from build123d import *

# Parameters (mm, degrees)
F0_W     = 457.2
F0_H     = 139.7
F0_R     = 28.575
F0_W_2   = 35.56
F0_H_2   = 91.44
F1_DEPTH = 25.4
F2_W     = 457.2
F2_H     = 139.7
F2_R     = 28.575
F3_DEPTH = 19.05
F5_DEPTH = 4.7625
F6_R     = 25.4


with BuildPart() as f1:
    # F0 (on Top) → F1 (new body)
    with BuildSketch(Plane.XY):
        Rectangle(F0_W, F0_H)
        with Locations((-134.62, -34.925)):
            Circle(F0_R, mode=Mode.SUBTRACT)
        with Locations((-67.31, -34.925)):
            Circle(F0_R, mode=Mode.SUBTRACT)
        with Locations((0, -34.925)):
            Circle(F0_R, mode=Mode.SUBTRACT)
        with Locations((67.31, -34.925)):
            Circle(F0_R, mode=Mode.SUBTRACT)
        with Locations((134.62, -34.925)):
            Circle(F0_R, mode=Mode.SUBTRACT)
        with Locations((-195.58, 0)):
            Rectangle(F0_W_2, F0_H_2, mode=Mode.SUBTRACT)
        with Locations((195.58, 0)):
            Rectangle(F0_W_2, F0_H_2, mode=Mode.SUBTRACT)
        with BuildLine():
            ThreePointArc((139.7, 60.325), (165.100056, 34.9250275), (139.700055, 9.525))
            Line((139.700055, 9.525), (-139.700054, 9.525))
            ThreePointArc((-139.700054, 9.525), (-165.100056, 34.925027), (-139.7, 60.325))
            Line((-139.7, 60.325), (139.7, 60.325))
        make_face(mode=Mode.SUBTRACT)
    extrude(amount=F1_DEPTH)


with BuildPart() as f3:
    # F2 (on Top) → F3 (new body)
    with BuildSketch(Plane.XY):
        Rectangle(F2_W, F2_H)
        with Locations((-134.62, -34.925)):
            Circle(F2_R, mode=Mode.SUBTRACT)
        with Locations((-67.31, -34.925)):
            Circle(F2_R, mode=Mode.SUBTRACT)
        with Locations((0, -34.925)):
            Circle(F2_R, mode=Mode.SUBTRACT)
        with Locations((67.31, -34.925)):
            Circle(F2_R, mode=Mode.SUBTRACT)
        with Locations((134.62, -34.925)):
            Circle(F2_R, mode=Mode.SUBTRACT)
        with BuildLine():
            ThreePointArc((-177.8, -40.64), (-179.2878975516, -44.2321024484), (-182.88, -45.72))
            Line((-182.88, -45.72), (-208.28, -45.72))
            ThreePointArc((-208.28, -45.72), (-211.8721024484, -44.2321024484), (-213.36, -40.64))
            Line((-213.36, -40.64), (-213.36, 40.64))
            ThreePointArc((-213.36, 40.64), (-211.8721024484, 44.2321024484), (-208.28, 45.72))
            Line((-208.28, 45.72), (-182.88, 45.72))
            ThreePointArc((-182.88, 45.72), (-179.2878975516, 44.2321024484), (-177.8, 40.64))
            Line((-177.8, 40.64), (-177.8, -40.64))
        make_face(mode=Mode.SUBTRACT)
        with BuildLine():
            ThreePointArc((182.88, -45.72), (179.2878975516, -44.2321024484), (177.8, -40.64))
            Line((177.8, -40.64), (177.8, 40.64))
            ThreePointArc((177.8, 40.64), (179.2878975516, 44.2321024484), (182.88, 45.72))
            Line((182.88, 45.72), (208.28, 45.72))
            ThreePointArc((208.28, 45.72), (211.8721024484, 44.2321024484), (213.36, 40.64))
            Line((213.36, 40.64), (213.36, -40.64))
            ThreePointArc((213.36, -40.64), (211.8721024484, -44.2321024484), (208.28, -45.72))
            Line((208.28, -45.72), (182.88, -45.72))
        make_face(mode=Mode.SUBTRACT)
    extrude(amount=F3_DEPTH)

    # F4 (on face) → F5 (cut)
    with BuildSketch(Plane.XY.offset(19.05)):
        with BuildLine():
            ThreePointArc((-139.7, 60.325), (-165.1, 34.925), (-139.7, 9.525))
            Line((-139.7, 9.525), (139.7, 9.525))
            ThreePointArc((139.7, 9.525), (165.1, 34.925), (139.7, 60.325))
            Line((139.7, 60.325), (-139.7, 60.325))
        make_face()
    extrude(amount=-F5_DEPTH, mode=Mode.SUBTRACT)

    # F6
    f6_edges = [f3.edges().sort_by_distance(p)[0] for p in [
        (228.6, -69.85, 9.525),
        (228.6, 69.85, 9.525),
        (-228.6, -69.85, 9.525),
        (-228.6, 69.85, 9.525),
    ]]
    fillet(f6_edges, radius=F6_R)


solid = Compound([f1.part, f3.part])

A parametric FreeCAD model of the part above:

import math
import FreeCAD as App
import Part
import Sketcher
Q = App.Units.Quantity


def edges_at(feature, points):
    """Names of the edges that pass closest to the given points."""
    edges = feature.Shape.Edges
    near = lambda p: min(range(len(edges)), key=lambda i: edges[i].distToShape(Part.Vertex(*p))[0])
    return sorted({f"Edge{near(p) + 1}" for p in points})

doc = App.newDocument("Part")
params = doc.addObject("Spreadsheet::Sheet", "Params")
for row, (alias, value) in enumerate([
    ("sketch1_radius", "1 in"),
    ("sketch1_diameter", "2.25 in"),
    ("sketch1_width", "18 in"),
    ("sketch1_width2", "11 in"),
    ("sketch1_width3", "1.4 in"),
    ("pad1_length", "1 in"),
    ("sketch2_radius", "0.2 in"),
    ("sketch2_diameter", "2.25 in"),
    ("sketch2_width", "18 in"),
    ("sketch2_width2", "1 in"),
    ("sketch2_height", "5.5 in"),
    ("pad2_length", "0.75 in"),
    ("sketch3_radius", "1 in"),
    ("sketch3_width", "11 in"),
    ("pocket1_length", "0.1875 in"),
    ("fillet_radius", "1 in"),
], start=1):
    params.set(f"A{row}", alias)
    params.set(f"B{row}", "=" + value)
    params.setAlias(f"B{row}", alias)

body = doc.addObject("PartDesign::Body", "Body")

sketch1 = body.newObject("Sketcher::SketchObject", "Sketch")
sketch1.AttachmentSupport = (doc.getObject("XY_Plane"), [""])
sketch1.MapMode = "FlatFace"
sketch1.addGeometry([
    Part.LineSegment(App.Vector(-229, 70, 0), App.Vector(-229, -70, 0)),
    Part.LineSegment(App.Vector(-229, -70, 0), App.Vector(229, -70, 0)),
    Part.LineSegment(App.Vector(229, -70, 0), App.Vector(229, 70, 0)),
    Part.LineSegment(App.Vector(229, 70, 0), App.Vector(-229, 70, 0)),
    Part.Circle(App.Vector(-135, -35, 0), App.Vector(0, 0, 1), 29),
    Part.Circle(App.Vector(-67, -35, 0), App.Vector(0, 0, 1), 29),
    Part.Circle(App.Vector(0, -35, 0), App.Vector(0, 0, 1), 29),
    Part.Circle(App.Vector(67, -35, 0), App.Vector(0, 0, 1), 29),
    Part.Circle(App.Vector(135, -35, 0), App.Vector(0, 0, 1), 29),
    Part.LineSegment(App.Vector(-178, -46, 0), App.Vector(-213, -46, 0)),
    Part.LineSegment(App.Vector(-213, -46, 0), App.Vector(-213, 46, 0)),
    Part.LineSegment(App.Vector(-213, 46, 0), App.Vector(-178, 46, 0)),
    Part.LineSegment(App.Vector(-178, 46, 0), App.Vector(-178, -46, 0)),
    Part.LineSegment(App.Vector(213, -46, 0), App.Vector(178, -46, 0)),
    Part.LineSegment(App.Vector(178, -46, 0), App.Vector(178, 46, 0)),
    Part.LineSegment(App.Vector(178, 46, 0), App.Vector(213, 46, 0)),
    Part.LineSegment(App.Vector(213, 46, 0), App.Vector(213, -46, 0)),
    Part.LineSegment(App.Vector(-140, 60, 0), App.Vector(140, 60, 0)),
    Part.ArcOfCircle(Part.Circle(App.Vector(140, 35, 0), App.Vector(0, 0, 1), 25), math.radians(-90), math.radians(90)),
    Part.LineSegment(App.Vector(140, 10, 0), App.Vector(-140, 10, 0)),
    Part.ArcOfCircle(Part.Circle(App.Vector(-140, 35, 0), App.Vector(0, 0, 1), 25), math.radians(90), math.radians(270)),
], False)
sketch1.addConstraint([
    Sketcher.Constraint("Coincident", 0, 2, 1, 1),
    Sketcher.Constraint("Coincident", 1, 2, 2, 1),
    Sketcher.Constraint("Coincident", 2, 2, 3, 1),
    Sketcher.Constraint("Coincident", 3, 2, 0, 1),
    Sketcher.Constraint("Coincident", 9, 2, 10, 1),
    Sketcher.Constraint("Coincident", 10, 2, 11, 1),
    Sketcher.Constraint("Coincident", 11, 2, 12, 1),
    Sketcher.Constraint("Coincident", 12, 2, 9, 1),
    Sketcher.Constraint("Coincident", 13, 2, 14, 1),
    Sketcher.Constraint("Coincident", 14, 2, 15, 1),
    Sketcher.Constraint("Coincident", 15, 2, 16, 1),
    Sketcher.Constraint("Coincident", 16, 2, 13, 1),
    Sketcher.Constraint("Coincident", 17, 2, 18, 2),
    Sketcher.Constraint("Tangent", 18, 1, 19, 1),
    Sketcher.Constraint("Tangent", 19, 2, 20, 2),
    Sketcher.Constraint("Coincident", 20, 1, 17, 1),
    Sketcher.Constraint("Vertical", 0),
    Sketcher.Constraint("Horizontal", 1),
    Sketcher.Constraint("Vertical", 2),
    Sketcher.Constraint("Horizontal", 3),
    Sketcher.Constraint("Horizontal", 9),
    Sketcher.Constraint("Vertical", 10),
    Sketcher.Constraint("Horizontal", 11),
    Sketcher.Constraint("Vertical", 12),
    Sketcher.Constraint("Horizontal", 13),
    Sketcher.Constraint("Vertical", 14),
    Sketcher.Constraint("Horizontal", 15),
    Sketcher.Constraint("Vertical", 16),
    Sketcher.Constraint("Horizontal", 17),
    Sketcher.Constraint("Horizontal", 19),
    Sketcher.Constraint("Equal", 4, 5),
    Sketcher.Constraint("Equal", 5, 6),
    Sketcher.Constraint("Equal", 6, 7),
    Sketcher.Constraint("Equal", 7, 8),
    Sketcher.Constraint("Symmetric", 0, 2, 2, 2, -1, 1),
    Sketcher.Constraint("Symmetric", 11, 2, 13, 2, -1, 1),
    Sketcher.Constraint("Symmetric", 9, 2, 15, 2, -1, 1),
    Sketcher.Constraint("Symmetric", 5, 3, 7, 3, -2),
    Sketcher.Constraint("Symmetric", 4, 3, 8, 3, -2),
    Sketcher.Constraint("PointOnObject", 6, 3, -2),
    Sketcher.Constraint("Horizontal", 4, 3, 5, 3),
    Sketcher.Constraint("Horizontal", 5, 3, 6, 3),
    Sketcher.Constraint("Horizontal", 12, 2, 13, 2),
    Sketcher.Constraint("Radius", 18, Q("1 in")),
    Sketcher.Constraint("Diameter", 4, Q("2.25 in")),
    Sketcher.Constraint("DistanceX", 1, 1, 1, 2, Q("18 in")),
    Sketcher.Constraint("DistanceX", 17, 1, 17, 2, Q("11 in")),
    Sketcher.Constraint("DistanceX", 9, 2, 9, 1, Q("1.4 in")),
    Sketcher.Constraint("DistanceY", 0, 2, 0, 1, Q("5.5 in")),
    Sketcher.Constraint("DistanceY", 10, 1, 10, 2, Q("3.6 in")),
    Sketcher.Constraint("DistanceX", 11, 2, -1, 1, Q("7 in")),
    Sketcher.Constraint("DistanceX", 4, 3, -1, 1, Q("5.3 in")),
    Sketcher.Constraint("DistanceX", -1, 1, 17, 2, Q("5.5 in")),
    Sketcher.Constraint("DistanceX", 5, 3, 7, 3, Q("5.3 in")),
    Sketcher.Constraint("DistanceY", 8, 3, 18, 3, Q("2.75 in")),
    Sketcher.Constraint("DistanceY", 4, 3, -1, 1, Q("1.375 in")),
    Sketcher.Constraint("DistanceX", 19, 2, 19, 1, 279.400109),
    Sketcher.Constraint("DistanceX", -1, 1, 18, 3, 139.700056),
])
sketch1.setExpression("Constraints[43]", "Params.sketch1_radius")
sketch1.setExpression("Constraints[44]", "Params.sketch1_diameter")
sketch1.setExpression("Constraints[45]", "Params.sketch1_width")
sketch1.setExpression("Constraints[46]", "Params.sketch1_width2")
sketch1.setExpression("Constraints[47]", "Params.sketch1_width3")
pad1 = body.newObject("PartDesign::Pad", "Pad")
pad1.Profile = sketch1
pad1.setExpression("Length", "Params.pad1_length")
body2 = doc.addObject("PartDesign::Body", "Body001")

sketch2 = body2.newObject("Sketcher::SketchObject", "Sketch001")
sketch2.AttachmentSupport = (doc.getObject("XY_Plane001"), [""])
sketch2.MapMode = "FlatFace"
sketch2.addGeometry([
    Part.LineSegment(App.Vector(-229, 70, 0), App.Vector(-229, -70, 0)),
    Part.LineSegment(App.Vector(-229, -70, 0), App.Vector(229, -70, 0)),
    Part.LineSegment(App.Vector(229, -70, 0), App.Vector(229, 70, 0)),
    Part.LineSegment(App.Vector(229, 70, 0), App.Vector(-229, 70, 0)),
    Part.Circle(App.Vector(-135, -35, 0), App.Vector(0, 0, 1), 29),
    Part.Circle(App.Vector(-67, -35, 0), App.Vector(0, 0, 1), 29),
    Part.Circle(App.Vector(0, -35, 0), App.Vector(0, 0, 1), 29),
    Part.Circle(App.Vector(67, -35, 0), App.Vector(0, 0, 1), 29),
    Part.Circle(App.Vector(135, -35, 0), App.Vector(0, 0, 1), 29),
    Part.LineSegment(App.Vector(-178, 41, 0), App.Vector(-178, -41, 0)),
    Part.ArcOfCircle(Part.Circle(App.Vector(-183, -41, 0), App.Vector(0, 0, 1), 5), math.radians(-90), math.radians(0)),
    Part.LineSegment(App.Vector(-183, -46, 0), App.Vector(-208, -46, 0)),
    Part.ArcOfCircle(Part.Circle(App.Vector(-208, -41, 0), App.Vector(0, 0, 1), 5), math.radians(180), math.radians(270)),
    Part.LineSegment(App.Vector(-213, -41, 0), App.Vector(-213, 41, 0)),
    Part.ArcOfCircle(Part.Circle(App.Vector(-208, 41, 0), App.Vector(0, 0, 1), 5), math.radians(90), math.radians(180)),
    Part.LineSegment(App.Vector(-208, 46, 0), App.Vector(-183, 46, 0)),
    Part.ArcOfCircle(Part.Circle(App.Vector(-183, 41, 0), App.Vector(0, 0, 1), 5), math.radians(0), math.radians(90)),
    Part.LineSegment(App.Vector(208, -46, 0), App.Vector(183, -46, 0)),
    Part.ArcOfCircle(Part.Circle(App.Vector(183, -41, 0), App.Vector(0, 0, 1), 5), math.radians(180), math.radians(270)),
    Part.LineSegment(App.Vector(178, -41, 0), App.Vector(178, 41, 0)),
    Part.ArcOfCircle(Part.Circle(App.Vector(183, 41, 0), App.Vector(0, 0, 1), 5), math.radians(90), math.radians(180)),
    Part.LineSegment(App.Vector(183, 46, 0), App.Vector(208, 46, 0)),
    Part.ArcOfCircle(Part.Circle(App.Vector(208, 41, 0), App.Vector(0, 0, 1), 5), math.radians(0), math.radians(90)),
    Part.LineSegment(App.Vector(213, 41, 0), App.Vector(213, -41, 0)),
    Part.ArcOfCircle(Part.Circle(App.Vector(208, -41, 0), App.Vector(0, 0, 1), 5), math.radians(-90), math.radians(0)),
], False)
sketch2.addConstraint([
    Sketcher.Constraint("Coincident", 0, 2, 1, 1),
    Sketcher.Constraint("Coincident", 1, 2, 2, 1),
    Sketcher.Constraint("Coincident", 2, 2, 3, 1),
    Sketcher.Constraint("Coincident", 3, 2, 0, 1),
    Sketcher.Constraint("Tangent", 9, 2, 10, 2),
    Sketcher.Constraint("Tangent", 10, 1, 11, 1),
    Sketcher.Constraint("Tangent", 11, 2, 12, 2),
    Sketcher.Constraint("Tangent", 12, 1, 13, 1),
    Sketcher.Constraint("Tangent", 13, 2, 14, 2),
    Sketcher.Constraint("Tangent", 14, 1, 15, 1),
    Sketcher.Constraint("Tangent", 15, 2, 16, 2),
    Sketcher.Constraint("Tangent", 16, 1, 9, 1),
    Sketcher.Constraint("Tangent", 17, 2, 18, 2),
    Sketcher.Constraint("Tangent", 18, 1, 19, 1),
    Sketcher.Constraint("Tangent", 19, 2, 20, 2),
    Sketcher.Constraint("Tangent", 20, 1, 21, 1),
    Sketcher.Constraint("Tangent", 21, 2, 22, 2),
    Sketcher.Constraint("Tangent", 22, 1, 23, 1),
    Sketcher.Constraint("Tangent", 23, 2, 24, 2),
    Sketcher.Constraint("Tangent", 24, 1, 17, 1),
    Sketcher.Constraint("Vertical", 0),
    Sketcher.Constraint("Horizontal", 1),
    Sketcher.Constraint("Vertical", 2),
    Sketcher.Constraint("Horizontal", 3),
    Sketcher.Constraint("Vertical", 9),
    Sketcher.Constraint("Horizontal", 11),
    Sketcher.Constraint("Vertical", 13),
    Sketcher.Constraint("Horizontal", 15),
    Sketcher.Constraint("Horizontal", 17),
    Sketcher.Constraint("Vertical", 19),
    Sketcher.Constraint("Horizontal", 21),
    Sketcher.Constraint("Vertical", 23),
    Sketcher.Constraint("Equal", 4, 5),
    Sketcher.Constraint("Equal", 5, 6),
    Sketcher.Constraint("Equal", 6, 7),
    Sketcher.Constraint("Equal", 7, 8),
    Sketcher.Constraint("Equal", 10, 12),
    Sketcher.Constraint("Equal", 12, 14),
    Sketcher.Constraint("Equal", 14, 16),
    Sketcher.Constraint("Equal", 16, 18),
    Sketcher.Constraint("Equal", 18, 20),
    Sketcher.Constraint("Equal", 20, 22),
    Sketcher.Constraint("Equal", 22, 24),
    Sketcher.Constraint("Symmetric", 16, 3, 18, 3, -1, 1),
    Sketcher.Constraint("Symmetric", 12, 3, 22, 3, -1, 1),
    Sketcher.Constraint("Symmetric", 0, 2, 2, 2, -1, 1),
    Sketcher.Constraint("Symmetric", 5, 3, 7, 3, -2),
    Sketcher.Constraint("Symmetric", 4, 3, 8, 3, -2),
    Sketcher.Constraint("PointOnObject", 6, 3, -2),
    Sketcher.Constraint("Horizontal", 4, 3, 5, 3),
    Sketcher.Constraint("Horizontal", 5, 3, 6, 3),
    Sketcher.Constraint("Horizontal", 12, 3, 18, 3),
    Sketcher.Constraint("Radius", 10, Q("0.2 in")),
    Sketcher.Constraint("Diameter", 4, Q("2.25 in")),
    Sketcher.Constraint("DistanceX", 1, 1, 1, 2, Q("18 in")),
    Sketcher.Constraint("DistanceX", 11, 2, 11, 1, Q("1 in")),
    Sketcher.Constraint("DistanceY", 0, 2, 0, 1, Q("5.5 in")),
    Sketcher.Constraint("DistanceY", 9, 2, 9, 1, Q("3.2 in")),
    Sketcher.Constraint("DistanceX", 9, 2, -1, 1, Q("7 in")),
    Sketcher.Constraint("DistanceX", 4, 3, -1, 1, Q("5.3 in")),
    Sketcher.Constraint("DistanceX", 5, 3, 7, 3, Q("5.3 in")),
    Sketcher.Constraint("DistanceY", 4, 3, -1, 1, Q("1.375 in")),
])
sketch2.setExpression("Constraints[52]", "Params.sketch2_radius")
sketch2.setExpression("Constraints[53]", "Params.sketch2_diameter")
sketch2.setExpression("Constraints[54]", "Params.sketch2_width")
sketch2.setExpression("Constraints[55]", "Params.sketch2_width2")
sketch2.setExpression("Constraints[56]", "Params.sketch2_height")
pad2 = body2.newObject("PartDesign::Pad", "Pad001")
pad2.Profile = sketch2
pad2.setExpression("Length", "Params.pad2_length")

sketch3 = body2.newObject("Sketcher::SketchObject", "Sketch002")
sketch3.AttachmentSupport = (doc.getObject("XY_Plane001"), [""])
sketch3.MapMode = "FlatFace"
sketch3.AttachmentOffset = App.Placement(App.Vector(0, 0, 0.75 * 25.4), App.Rotation())
sketch3.addGeometry([
    Part.ArcOfCircle(Part.Circle(App.Vector(-140, 35, 0), App.Vector(0, 0, 1), 25), math.radians(90), math.radians(270)),
    Part.LineSegment(App.Vector(-140, 10, 0), App.Vector(140, 10, 0)),
    Part.ArcOfCircle(Part.Circle(App.Vector(140, 35, 0), App.Vector(0, 0, 1), 25), math.radians(-90), math.radians(90)),
    Part.LineSegment(App.Vector(140, 60, 0), App.Vector(-140, 60, 0)),
], False)
sketch3.addConstraint([
    Sketcher.Constraint("Tangent", 0, 2, 1, 1),
    Sketcher.Constraint("Tangent", 1, 2, 2, 1),
    Sketcher.Constraint("Tangent", 2, 2, 3, 1),
    Sketcher.Constraint("Tangent", 3, 2, 0, 1),
    Sketcher.Constraint("Horizontal", 1),
    Sketcher.Constraint("Horizontal", 3),
    Sketcher.Constraint("Radius", 0, Q("1 in")),
    Sketcher.Constraint("DistanceX", 1, 1, 1, 2, Q("11 in")),
    Sketcher.Constraint("DistanceX", 0, 3, -1, 1, Q("5.5 in")),
    Sketcher.Constraint("DistanceY", -1, 1, 0, 3, Q("1.375 in")),
])
sketch3.setExpression("Constraints[6]", "Params.sketch3_radius")
sketch3.setExpression("Constraints[7]", "Params.sketch3_width")
pocket1 = body2.newObject("PartDesign::Pocket", "Pocket")
pocket1.Profile = sketch3
pocket1.setExpression("Length", "Params.pocket1_length")
doc.recompute()

fillet = body2.newObject("PartDesign::Fillet", "Fillet")
fillet.Base = (pocket1, edges_at(pocket1, [
    (228.6, -69.85, 9.525),
    (228.6, 69.85, 9.525),
    (-228.6, -69.85, 9.525),
    (-228.6, 69.85, 9.525),
]))
fillet.setExpression("Radius", "Params.fillet_radius")

doc.recompute()
